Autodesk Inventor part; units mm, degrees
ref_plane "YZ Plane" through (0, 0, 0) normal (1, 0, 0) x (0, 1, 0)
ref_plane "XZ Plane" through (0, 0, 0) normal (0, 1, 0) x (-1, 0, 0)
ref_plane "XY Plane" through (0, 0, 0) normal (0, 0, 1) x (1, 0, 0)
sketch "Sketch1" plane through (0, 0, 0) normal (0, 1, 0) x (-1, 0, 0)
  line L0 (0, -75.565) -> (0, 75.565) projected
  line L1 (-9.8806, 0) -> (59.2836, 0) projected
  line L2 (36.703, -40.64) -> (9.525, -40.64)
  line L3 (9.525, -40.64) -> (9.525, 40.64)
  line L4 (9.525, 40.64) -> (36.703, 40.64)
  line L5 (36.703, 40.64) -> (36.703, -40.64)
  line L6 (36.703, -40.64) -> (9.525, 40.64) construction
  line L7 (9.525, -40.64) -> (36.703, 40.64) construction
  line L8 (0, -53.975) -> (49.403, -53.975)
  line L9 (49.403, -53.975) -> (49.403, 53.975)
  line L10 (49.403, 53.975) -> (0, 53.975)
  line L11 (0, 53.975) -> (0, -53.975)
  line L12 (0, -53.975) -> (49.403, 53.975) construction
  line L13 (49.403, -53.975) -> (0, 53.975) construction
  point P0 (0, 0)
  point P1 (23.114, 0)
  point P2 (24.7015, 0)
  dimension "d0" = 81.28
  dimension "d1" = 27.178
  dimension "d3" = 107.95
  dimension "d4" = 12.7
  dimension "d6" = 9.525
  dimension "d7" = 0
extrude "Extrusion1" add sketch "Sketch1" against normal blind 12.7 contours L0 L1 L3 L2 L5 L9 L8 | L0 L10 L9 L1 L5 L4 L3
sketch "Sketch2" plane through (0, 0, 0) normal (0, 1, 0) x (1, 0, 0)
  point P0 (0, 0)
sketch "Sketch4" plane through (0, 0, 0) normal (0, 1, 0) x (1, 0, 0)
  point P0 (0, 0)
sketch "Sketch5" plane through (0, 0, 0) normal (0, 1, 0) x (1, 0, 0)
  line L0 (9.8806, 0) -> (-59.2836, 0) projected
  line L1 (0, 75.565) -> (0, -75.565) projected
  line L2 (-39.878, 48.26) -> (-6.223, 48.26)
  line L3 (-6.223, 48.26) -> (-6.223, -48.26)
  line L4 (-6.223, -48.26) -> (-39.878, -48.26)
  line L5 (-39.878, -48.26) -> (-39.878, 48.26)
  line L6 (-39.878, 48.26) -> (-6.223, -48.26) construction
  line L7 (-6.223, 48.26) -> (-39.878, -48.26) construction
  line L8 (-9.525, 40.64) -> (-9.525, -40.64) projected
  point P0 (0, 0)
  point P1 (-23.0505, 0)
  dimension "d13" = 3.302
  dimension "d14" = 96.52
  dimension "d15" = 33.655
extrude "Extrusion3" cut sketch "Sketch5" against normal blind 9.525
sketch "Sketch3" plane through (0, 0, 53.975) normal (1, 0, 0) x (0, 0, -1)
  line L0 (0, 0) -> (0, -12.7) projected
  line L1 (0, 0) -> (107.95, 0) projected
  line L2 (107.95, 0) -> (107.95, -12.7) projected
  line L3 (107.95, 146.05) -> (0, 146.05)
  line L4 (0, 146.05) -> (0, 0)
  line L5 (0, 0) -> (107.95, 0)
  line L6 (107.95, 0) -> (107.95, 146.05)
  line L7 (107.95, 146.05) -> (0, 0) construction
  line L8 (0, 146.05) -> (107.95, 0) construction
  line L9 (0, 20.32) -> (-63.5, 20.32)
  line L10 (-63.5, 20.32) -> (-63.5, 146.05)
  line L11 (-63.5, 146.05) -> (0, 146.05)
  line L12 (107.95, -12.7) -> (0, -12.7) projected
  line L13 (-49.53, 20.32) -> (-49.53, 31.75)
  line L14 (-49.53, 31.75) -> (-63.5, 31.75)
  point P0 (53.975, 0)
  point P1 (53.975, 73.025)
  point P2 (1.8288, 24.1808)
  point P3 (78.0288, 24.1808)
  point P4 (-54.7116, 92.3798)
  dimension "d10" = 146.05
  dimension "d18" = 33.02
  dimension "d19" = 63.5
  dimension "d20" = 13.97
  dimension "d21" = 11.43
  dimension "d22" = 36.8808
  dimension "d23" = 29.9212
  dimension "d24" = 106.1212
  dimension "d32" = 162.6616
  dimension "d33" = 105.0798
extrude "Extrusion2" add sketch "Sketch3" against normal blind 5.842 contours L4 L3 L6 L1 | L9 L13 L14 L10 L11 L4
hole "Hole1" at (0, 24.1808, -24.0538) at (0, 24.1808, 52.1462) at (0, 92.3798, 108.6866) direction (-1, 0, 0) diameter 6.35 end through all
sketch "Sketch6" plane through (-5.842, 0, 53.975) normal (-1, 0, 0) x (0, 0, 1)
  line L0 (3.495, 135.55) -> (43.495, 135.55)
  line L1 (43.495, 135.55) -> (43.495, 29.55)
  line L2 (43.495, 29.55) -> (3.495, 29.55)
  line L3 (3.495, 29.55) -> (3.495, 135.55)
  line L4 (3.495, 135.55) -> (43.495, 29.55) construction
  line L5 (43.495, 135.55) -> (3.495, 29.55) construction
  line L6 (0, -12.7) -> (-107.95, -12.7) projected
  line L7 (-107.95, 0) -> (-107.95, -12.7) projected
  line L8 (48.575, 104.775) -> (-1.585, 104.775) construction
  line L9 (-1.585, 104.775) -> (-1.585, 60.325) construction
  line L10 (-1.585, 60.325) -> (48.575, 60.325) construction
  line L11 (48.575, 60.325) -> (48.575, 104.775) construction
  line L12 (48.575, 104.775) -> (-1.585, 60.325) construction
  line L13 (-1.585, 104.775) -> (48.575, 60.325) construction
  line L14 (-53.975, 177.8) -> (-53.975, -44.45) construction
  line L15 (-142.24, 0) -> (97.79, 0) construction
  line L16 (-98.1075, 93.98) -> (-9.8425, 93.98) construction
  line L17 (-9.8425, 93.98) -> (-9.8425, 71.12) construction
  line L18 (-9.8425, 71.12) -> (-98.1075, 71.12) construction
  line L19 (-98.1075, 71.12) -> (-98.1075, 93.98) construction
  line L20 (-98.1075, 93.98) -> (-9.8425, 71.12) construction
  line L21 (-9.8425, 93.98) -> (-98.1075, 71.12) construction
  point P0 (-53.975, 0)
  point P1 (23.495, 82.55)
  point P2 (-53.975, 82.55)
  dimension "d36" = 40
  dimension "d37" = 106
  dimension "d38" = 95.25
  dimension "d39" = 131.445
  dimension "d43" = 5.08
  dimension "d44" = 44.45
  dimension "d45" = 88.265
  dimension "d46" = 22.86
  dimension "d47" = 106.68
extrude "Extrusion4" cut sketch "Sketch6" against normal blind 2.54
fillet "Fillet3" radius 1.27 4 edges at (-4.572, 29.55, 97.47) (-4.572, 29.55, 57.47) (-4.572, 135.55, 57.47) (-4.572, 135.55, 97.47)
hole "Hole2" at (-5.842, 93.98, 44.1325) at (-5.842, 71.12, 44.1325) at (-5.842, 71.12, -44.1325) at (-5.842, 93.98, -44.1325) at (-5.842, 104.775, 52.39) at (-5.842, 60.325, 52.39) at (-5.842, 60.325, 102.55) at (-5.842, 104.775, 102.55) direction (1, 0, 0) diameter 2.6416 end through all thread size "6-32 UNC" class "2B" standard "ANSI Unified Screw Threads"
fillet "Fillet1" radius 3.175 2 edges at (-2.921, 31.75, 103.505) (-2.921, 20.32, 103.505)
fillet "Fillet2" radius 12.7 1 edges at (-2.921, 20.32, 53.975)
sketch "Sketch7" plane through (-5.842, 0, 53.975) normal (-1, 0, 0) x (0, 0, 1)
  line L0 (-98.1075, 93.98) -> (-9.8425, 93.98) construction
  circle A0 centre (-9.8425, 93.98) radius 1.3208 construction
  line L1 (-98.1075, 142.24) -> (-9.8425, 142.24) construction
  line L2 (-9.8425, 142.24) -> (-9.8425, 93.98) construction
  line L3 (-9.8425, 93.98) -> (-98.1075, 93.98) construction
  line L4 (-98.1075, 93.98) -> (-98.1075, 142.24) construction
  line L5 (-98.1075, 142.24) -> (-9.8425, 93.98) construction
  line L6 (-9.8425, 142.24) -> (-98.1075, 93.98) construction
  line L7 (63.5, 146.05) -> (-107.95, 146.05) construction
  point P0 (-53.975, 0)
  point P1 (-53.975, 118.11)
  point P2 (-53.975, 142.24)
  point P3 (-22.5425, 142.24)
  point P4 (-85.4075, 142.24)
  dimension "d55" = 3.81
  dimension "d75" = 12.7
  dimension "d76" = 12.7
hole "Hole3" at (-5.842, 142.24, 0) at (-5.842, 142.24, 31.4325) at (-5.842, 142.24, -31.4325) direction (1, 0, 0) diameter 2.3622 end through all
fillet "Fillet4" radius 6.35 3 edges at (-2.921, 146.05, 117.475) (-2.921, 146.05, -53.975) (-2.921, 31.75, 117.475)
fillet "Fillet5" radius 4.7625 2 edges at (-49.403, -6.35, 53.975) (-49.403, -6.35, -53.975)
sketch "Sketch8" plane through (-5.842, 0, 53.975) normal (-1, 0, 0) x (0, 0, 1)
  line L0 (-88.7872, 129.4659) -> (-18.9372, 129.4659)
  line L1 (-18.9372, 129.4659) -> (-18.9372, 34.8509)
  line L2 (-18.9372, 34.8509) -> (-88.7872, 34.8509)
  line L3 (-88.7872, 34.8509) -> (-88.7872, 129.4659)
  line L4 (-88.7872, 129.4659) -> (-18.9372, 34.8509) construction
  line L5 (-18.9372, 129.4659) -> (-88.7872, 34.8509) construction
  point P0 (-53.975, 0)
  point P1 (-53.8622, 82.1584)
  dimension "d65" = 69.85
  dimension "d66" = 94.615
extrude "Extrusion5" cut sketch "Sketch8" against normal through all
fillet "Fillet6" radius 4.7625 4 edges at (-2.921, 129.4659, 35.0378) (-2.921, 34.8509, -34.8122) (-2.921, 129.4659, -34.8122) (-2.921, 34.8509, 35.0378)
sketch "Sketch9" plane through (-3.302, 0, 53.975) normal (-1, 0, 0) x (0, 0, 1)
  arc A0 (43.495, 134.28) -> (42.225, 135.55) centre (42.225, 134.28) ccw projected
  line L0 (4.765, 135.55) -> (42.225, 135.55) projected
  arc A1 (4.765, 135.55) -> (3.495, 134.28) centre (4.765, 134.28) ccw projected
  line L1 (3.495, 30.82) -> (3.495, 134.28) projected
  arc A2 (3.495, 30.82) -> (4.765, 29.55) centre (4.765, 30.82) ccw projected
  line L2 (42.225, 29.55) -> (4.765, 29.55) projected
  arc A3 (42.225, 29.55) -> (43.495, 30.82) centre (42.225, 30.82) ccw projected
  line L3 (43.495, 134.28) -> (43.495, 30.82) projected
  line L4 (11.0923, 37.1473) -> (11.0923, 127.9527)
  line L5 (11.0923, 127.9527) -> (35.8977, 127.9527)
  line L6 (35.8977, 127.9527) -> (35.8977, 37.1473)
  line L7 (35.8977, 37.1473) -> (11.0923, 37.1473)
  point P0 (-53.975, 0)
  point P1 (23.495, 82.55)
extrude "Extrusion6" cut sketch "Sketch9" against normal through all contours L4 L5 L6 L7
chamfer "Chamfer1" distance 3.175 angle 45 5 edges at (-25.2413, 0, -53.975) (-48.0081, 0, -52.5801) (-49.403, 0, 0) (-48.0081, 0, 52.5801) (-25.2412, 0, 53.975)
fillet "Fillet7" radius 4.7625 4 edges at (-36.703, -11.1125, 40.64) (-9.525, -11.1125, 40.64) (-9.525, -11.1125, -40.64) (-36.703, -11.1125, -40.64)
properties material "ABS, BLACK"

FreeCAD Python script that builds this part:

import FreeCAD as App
import Part
import Sketcher
from FreeCAD import Vector
Q = App.Units.Quantity


def edges_at(feature, points):
    """Names of the edges that pass closest to the given points."""
    edges = feature.Shape.Edges
    near = lambda p: min(range(len(edges)), key=lambda i: edges[i].distToShape(Part.Vertex(*p))[0])
    return sorted({f"Edge{near(p) + 1}" for p in points})


def add_polygon(sketch, points):
    """Adds a closed chain of lines whose ends are joined by coincident constraints."""
    first, n = sketch.GeometryCount, len(points)
    for a, b in zip(points, points[1:] + points[:1]):
        sketch.addGeometry(Part.LineSegment(App.Vector(*a, 0), App.Vector(*b, 0)), False)
    for i in range(n):
        sketch.addConstraint(Sketcher.Constraint("Coincident", first + i, 2, first + (i + 1) % n, 1))

doc = App.newDocument("Part")
body = doc.addObject("PartDesign::Body", "Body")

# Sketch on XZ plane
sketch1 = body.newObject("Sketcher::SketchObject", "Sketch")
sketch1.AttachmentSupport = (doc.getObject("XZ_Plane"), [""])
sketch1.MapMode = "FlatFace"
add_polygon(sketch1, [(0, -54), (-49, -54), (-49, 54), (0, 54)])  # lines 0-3
add_polygon(sketch1, [(-10, -41), (-10, 41), (-37, 41), (-37, -41)])  # lines 4-7
sketch1.addConstraint(Sketcher.Constraint("Horizontal", 0))
sketch1.addConstraint(Sketcher.Constraint("Vertical", 1))
sketch1.addConstraint(Sketcher.Constraint("Horizontal", 2))
sketch1.addConstraint(Sketcher.Constraint("Vertical", 3))
sketch1.addConstraint(Sketcher.Constraint("Vertical", 4))
sketch1.addConstraint(Sketcher.Constraint("Horizontal", 5))
sketch1.addConstraint(Sketcher.Constraint("Vertical", 6))
sketch1.addConstraint(Sketcher.Constraint("Horizontal", 7))
sketch1.addConstraint(Sketcher.Constraint("Symmetric", 2, 2, 3, 2, -1, 1))
sketch1.addConstraint(Sketcher.Constraint("DistanceY", 4, 1, 4, 2, Q("3.2 in")))
sketch1.addConstraint(Sketcher.Constraint("DistanceX", 5, 2, 5, 1, Q("1.07 in")))
sketch1.addConstraint(Sketcher.Constraint("DistanceY", 1, 1, 1, 2, Q("4.25 in")))
sketch1.addConstraint(Sketcher.Constraint("DistanceX", 1, 2, 5, 2, Q("0.5 in")))
sketch1.addConstraint(Sketcher.Constraint("DistanceX", 4, 2, -1, 1, Q("0.375 in")))
sketch1.addConstraint(Sketcher.Constraint("DistanceY", -1, 1, 4, 2, Q("1.6 in")))
pad1 = body.newObject("PartDesign::Pad", "Pad")
pad1.Profile = sketch1
pad1.Length = Q("0.5 in")

# Sketch on XZ plane
sketch2 = body.newObject("Sketcher::SketchObject", "Sketch001")
sketch2.AttachmentSupport = (doc.getObject("XZ_Plane"), [""])
sketch2.MapMode = "FlatFace"
add_polygon(sketch2, [(-6, 48), (-6, -48), (-40, -48), (-40, 48)])  # lines 0-3
sketch2.addConstraint(Sketcher.Constraint("Vertical", 0))
sketch2.addConstraint(Sketcher.Constraint("Horizontal", 1))
sketch2.addConstraint(Sketcher.Constraint("Vertical", 2))
sketch2.addConstraint(Sketcher.Constraint("Horizontal", 3))
sketch2.addConstraint(Sketcher.Constraint("DistanceY", 0, 2, 0, 1, Q("3.8 in")))
sketch2.addConstraint(Sketcher.Constraint("DistanceX", 1, 2, 1, 1, Q("1.325 in")))
sketch2.addConstraint(Sketcher.Constraint("DistanceY", 0, 2, -1, 1, Q("1.9 in")))
sketch2.addConstraint(Sketcher.Constraint("DistanceX", 1, 2, -1, 1, Q("1.57 in")))
pocket1 = body.newObject("PartDesign::Pocket", "Pocket")
pocket1.Profile = sketch2
pocket1.Length = Q("0.375 in")
pocket1.Reversed = True

# Sketch on YZ plane
sketch3 = body.newObject("Sketcher::SketchObject", "Sketch002")
sketch3.AttachmentSupport = (doc.getObject("YZ_Plane"), [""])
sketch3.MapMode = "FlatFace"
add_polygon(sketch3, [(20, 54), (0, 54), (0, -54), (146, -54), (146, 117), (32, 117), (32, 104), (20, 104)])  # lines 0-7
sketch3.addConstraint(Sketcher.Constraint("Horizontal", 0))
sketch3.addConstraint(Sketcher.Constraint("Vertical", 1))
sketch3.addConstraint(Sketcher.Constraint("Horizontal", 2))
sketch3.addConstraint(Sketcher.Constraint("Vertical", 3))
sketch3.addConstraint(Sketcher.Constraint("Horizontal", 4))
sketch3.addConstraint(Sketcher.Constraint("Vertical", 5))
sketch3.addConstraint(Sketcher.Constraint("Horizontal", 6))
sketch3.addConstraint(Sketcher.Constraint("Vertical", 7))
sketch3.addConstraint(Sketcher.Constraint("Symmetric", 0, 2, 1, 2, -1, 1))
sketch3.addConstraint(Sketcher.Constraint("DistanceX", 2, 1, 2, 2, Q("5.75 in")))
sketch3.addConstraint(Sketcher.Constraint("DistanceX", 6, 2, 6, 1, Q("0.45 in")))
sketch3.addConstraint(Sketcher.Constraint("DistanceY", 5, 2, 5, 1, Q("0.55 in")))
sketch3.addConstraint(Sketcher.Constraint("DistanceY", 0, 2, 3, 2, Q("2.5 in")))
sketch3.addConstraint(Sketcher.Constraint("DistanceX", 0, 2, 0, 1, Q("0.8 in")))
sketch3.addConstraint(Sketcher.Constraint("DistanceY", 1, 2, 1, 1, Q("4.25 in")))
pad2 = body.newObject("PartDesign::Pad", "Pad001")
pad2.Profile = sketch3
pad2.Length = Q("0.23 in")
pad2.Reversed = True

# Sketch on YZ plane
sketch4 = body.newObject("Sketcher::SketchObject", "Sketch003")
sketch4.AttachmentSupport = (doc.getObject("YZ_Plane"), [""])
sketch4.MapMode = "FlatFace"
sketch4.addGeometry(Part.Circle(Vector(24.2, -24.1, 0), Vector(0, 0, 1), 3.2), False)
sketch4.addGeometry(Part.Circle(Vector(24.2, 52.1, 0), Vector(0, 0, 1), 3.2), False)
sketch4.addGeometry(Part.Circle(Vector(92.4, 108.7, 0), Vector(0, 0, 1), 3.2), False)
sketch4.addConstraint(Sketcher.Constraint("Equal", 0, 1))
sketch4.addConstraint(Sketcher.Constraint("Equal", 1, 2))
sketch4.addConstraint(Sketcher.Constraint("Vertical", 0, 3, 1, 3))
sketch4.addConstraint(Sketcher.Constraint("Diameter", 0, Q("0.25 in")))
sketch4.addConstraint(Sketcher.Constraint("DistanceY", 0, 3, 1, 3, Q("3 in")))
sketch4.addConstraint(Sketcher.Constraint("DistanceX", -1, 1, 0, 3, Q("0.952 in")))
sketch4.addConstraint(Sketcher.Constraint("DistanceY", 0, 3, -1, 1, Q("0.947 in")))
sketch4.addConstraint(Sketcher.Constraint("DistanceX", -1, 1, 2, 3, Q("3.637 in")))
sketch4.addConstraint(Sketcher.Constraint("DistanceY", -1, 1, 2, 3, Q("4.279 in")))
doc.recompute()
hole = body.newObject("PartDesign::Hole", "Hole")
hole.Profile = sketch4
hole.ThreadType = "None"
hole.Diameter = Q("0.25 in")
hole.DepthType = "ThroughAll"

# Sketch on YZ plane
sketch5 = body.newObject("Sketcher::SketchObject", "Sketch004")
sketch5.AttachmentSupport = (doc.getObject("YZ_Plane"), [""])
sketch5.MapMode = "FlatFace"
sketch5.AttachmentOffset = App.Placement(Vector(0, 0, -0.23 * 25.4), App.Rotation())
add_polygon(sketch5, [(136, 97), (136, 57), (30, 57), (30, 97)])  # lines 0-3
sketch5.addConstraint(Sketcher.Constraint("Vertical", 0))
sketch5.addConstraint(Sketcher.Constraint("Horizontal", 1))
sketch5.addConstraint(Sketcher.Constraint("Vertical", 2))
sketch5.addConstraint(Sketcher.Constraint("Horizontal", 3))
sketch5.addConstraint(Sketcher.Constraint("DistanceY", 0, 2, 0, 1, Q("1.5748 in")))
sketch5.addConstraint(Sketcher.Constraint("DistanceX", 1, 2, 1, 1, Q("106 mm")))
sketch5.addConstraint(Sketcher.Constraint("DistanceY", -1, 1, 0, 2, Q("2.2626 in")))
sketch5.addConstraint(Sketcher.Constraint("DistanceX", -1, 1, 0, 2, Q("135.55 mm")))
pocket2 = body.newObject("PartDesign::Pocket", "Pocket001")
pocket2.Profile = sketch5
pocket2.Length = Q("0.1 in")
pocket2.Reversed = True
doc.recompute()

fillet = body.newObject("PartDesign::Fillet", "Fillet")
fillet.Base = (pocket2, edges_at(pocket2, [
    (-4.572, 29.55, 97.47),
    (-4.572, 29.55, 57.47),
    (-4.572, 135.55, 57.47),
    (-4.572, 135.55, 97.47),
]))
fillet.Radius = Q("0.05 in")

# Sketch on YZ plane
sketch6 = body.newObject("Sketcher::SketchObject", "Sketch005")
sketch6.AttachmentSupport = (doc.getObject("YZ_Plane"), [""])
sketch6.MapMode = "FlatFace"
sketch6.AttachmentOffset = App.Placement(Vector(0, 0, -0.23 * 25.4), App.Rotation())
sketch6.addGeometry(Part.Circle(Vector(94, 44.1, 0), Vector(0, 0, 1), 1.3), False)
sketch6.addGeometry(Part.Circle(Vector(71.1, 44.1, 0), Vector(0, 0, 1), 1.3), False)
sketch6.addGeometry(Part.Circle(Vector(71.1, -44.1, 0), Vector(0, 0, 1), 1.3), False)
sketch6.addGeometry(Part.Circle(Vector(94, -44.1, 0), Vector(0, 0, 1), 1.3), False)
sketch6.addGeometry(Part.Circle(Vector(104.8, 52.4, 0), Vector(0, 0, 1), 1.3), False)
sketch6.addGeometry(Part.Circle(Vector(60.3, 52.4, 0), Vector(0, 0, 1), 1.3), False)
sketch6.addGeometry(Part.Circle(Vector(60.3, 102.5, 0), Vector(0, 0, 1), 1.3), False)
sketch6.addGeometry(Part.Circle(Vector(104.8, 102.5, 0), Vector(0, 0, 1), 1.3), False)
sketch6.addConstraint(Sketcher.Constraint("Equal", 0, 1))
sketch6.addConstraint(Sketcher.Constraint("Equal", 1, 2))
sketch6.addConstraint(Sketcher.Constraint("Equal", 2, 3))
sketch6.addConstraint(Sketcher.Constraint("Equal", 3, 4))
sketch6.addConstraint(Sketcher.Constraint("Equal", 4, 5))
sketch6.addConstraint(Sketcher.Constraint("Equal", 5, 6))
sketch6.addConstraint(Sketcher.Constraint("Equal", 6, 7))
sketch6.addConstraint(Sketcher.Constraint("Symmetric", 1, 3, 2, 3, -1))
sketch6.addConstraint(Sketcher.Constraint("Symmetric", 0, 3, 3, 3, -1))
sketch6.addConstraint(Sketcher.Constraint("Horizontal", 0, 3, 1, 3))
sketch6.addConstraint(Sketcher.Constraint("Horizontal", 4, 3, 5, 3))
sketch6.addConstraint(Sketcher.Constraint("Horizontal", 6, 3, 7, 3))
sketch6.addConstraint(Sketcher.Constraint("Vertical", 5, 3, 6, 3))
sketch6.addConstraint(Sketcher.Constraint("Vertical", 4, 3, 7, 3))
sketch6.addConstraint(Sketcher.Constraint("Diameter", 0, Q("0.104 in")))
sketch6.addConstraint(Sketcher.Constraint("DistanceX", -1, 1, 0, 3, Q("3.7 in")))
sketch6.addConstraint(Sketcher.Constraint("DistanceX", -1, 1, 1, 3, Q("2.8 in")))
sketch6.addConstraint(Sketcher.Constraint("DistanceX", 5, 3, 4, 3, Q("1.75 in")))
sketch6.addConstraint(Sketcher.Constraint("DistanceX", -1, 1, 4, 3, Q("4.125 in")))
sketch6.addConstraint(Sketcher.Constraint("DistanceY", 2, 3, 1, 3, Q("3.475 in")))
sketch6.addConstraint(Sketcher.Constraint("DistanceY", -1, 1, 4, 3, Q("2.0626 in")))
sketch6.addConstraint(Sketcher.Constraint("DistanceY", -1, 1, 6, 3, Q("4.0374 in")))
doc.recompute()
hole2 = body.newObject("PartDesign::Hole", "Hole001")
hole2.Profile = sketch6
hole2.ThreadType = "None"
hole2.Diameter = Q("0.104 in")
hole2.DepthType = "ThroughAll"
hole2.Reversed = True
doc.recompute()

fillet2 = body.newObject("PartDesign::Fillet", "Fillet001")
fillet2.Base = (hole2, edges_at(hole2, [(-2.921, 31.75, 103.505), (-2.921, 20.32, 103.505)]))
fillet2.Radius = Q("0.125 in")
doc.recompute()

fillet3 = body.newObject("PartDesign::Fillet", "Fillet002")
fillet3.Base = (fillet2, edges_at(fillet2, [(-2.921, 20.32, 53.975)]))
fillet3.Radius = Q("0.5 in")

# Sketch on YZ plane
sketch7 = body.newObject("Sketcher::SketchObject", "Sketch006")
sketch7.AttachmentSupport = (doc.getObject("YZ_Plane"), [""])
sketch7.MapMode = "FlatFace"
sketch7.AttachmentOffset = App.Placement(Vector(0, 0, -0.23 * 25.4), App.Rotation())
sketch7.addGeometry(Part.Circle(Vector(142.2, 0, 0), Vector(0, 0, 1), 1.2), False)
sketch7.addGeometry(Part.Circle(Vector(142.2, 31.4, 0), Vector(0, 0, 1), 1.2), False)
sketch7.addGeometry(Part.Circle(Vector(142.2, -31.4, 0), Vector(0, 0, 1), 1.2), False)
sketch7.addConstraint(Sketcher.Constraint("Equal", 0, 1))
sketch7.addConstraint(Sketcher.Constraint("Equal", 1, 2))
sketch7.addConstraint(Sketcher.Constraint("Symmetric", 1, 3, 2, 3, -1))
sketch7.addConstraint(Sketcher.Constraint("PointOnObject", 0, 3, -1))
sketch7.addConstraint(Sketcher.Constraint("Vertical", 0, 3, 1, 3))
sketch7.addConstraint(Sketcher.Constraint("Diameter", 0, Q("0.093 in")))
sketch7.addConstraint(Sketcher.Constraint("DistanceX", -1, 1, 0, 3, Q("5.6 in")))
sketch7.addConstraint(Sketcher.Constraint("DistanceY", 2, 3, 1, 3, Q("2.475 in")))
doc.recompute()
hole3 = body.newObject("PartDesign::Hole", "Hole002")
hole3.Profile = sketch7
hole3.ThreadType = "None"
hole3.Diameter = Q("0.093 in")
hole3.DepthType = "ThroughAll"
hole3.Reversed = True
doc.recompute()

fillet4 = body.newObject("PartDesign::Fillet", "Fillet003")
fillet4.Base = (hole3, edges_at(hole3, [(-2.921, 146.05, 117.475), (-2.921, 146.05, -53.975), (-2.921, 31.75, 117.475)]))
fillet4.Radius = Q("0.25 in")
doc.recompute()

fillet5 = body.newObject("PartDesign::Fillet", "Fillet004")
fillet5.Base = (fillet4, edges_at(fillet4, [(-49.403, -6.35, 53.975), (-49.403, -6.35, -53.975)]))
fillet5.Radius = Q("0.1875 in")

# Sketch on YZ plane
sketch8 = body.newObject("Sketcher::SketchObject", "Sketch007")
sketch8.AttachmentSupport = (doc.getObject("YZ_Plane"), [""])
sketch8.MapMode = "FlatFace"
sketch8.AttachmentOffset = App.Placement(Vector(0, 0, -0.23 * 25.4), App.Rotation())
add_polygon(sketch8, [(129, 35), (129, -35), (35, -35), (35, 35)])  # lines 0-3
sketch8.addConstraint(Sketcher.Constraint("Vertical", 0))
sketch8.addConstraint(Sketcher.Constraint("Horizontal", 1))
sketch8.addConstraint(Sketcher.Constraint("Vertical", 2))
sketch8.addConstraint(Sketcher.Constraint("Horizontal", 3))
sketch8.addConstraint(Sketcher.Constraint("DistanceY", 0, 2, 0, 1, Q("2.75 in")))
sketch8.addConstraint(Sketcher.Constraint("DistanceX", 1, 2, 1, 1, Q("3.725 in")))
sketch8.addConstraint(Sketcher.Constraint("DistanceX", -1, 1, 0, 2, Q("129.466 mm")))
sketch8.addConstraint(Sketcher.Constraint("DistanceY", 0, 2, -1, 1, Q("34.8122 mm")))
pocket3 = body.newObject("PartDesign::Pocket", "Pocket002")
pocket3.Profile = sketch8
pocket3.Type = "ThroughAll"
pocket3.Reversed = True
doc.recompute()

fillet6 = body.newObject("PartDesign::Fillet", "Fillet005")
fillet6.Base = (pocket3, edges_at(pocket3, [
    (-2.921, 129.466, 35.038),
    (-2.921, 34.851, -34.812),
    (-2.921, 129.466, -34.812),
    (-2.921, 34.851, 35.038),
]))
fillet6.Radius = Q("0.1875 in")

# Sketch on YZ plane
sketch9 = body.newObject("Sketcher::SketchObject", "Sketch008")
sketch9.AttachmentSupport = (doc.getObject("YZ_Plane"), [""])
sketch9.MapMode = "FlatFace"
sketch9.AttachmentOffset = App.Placement(Vector(0, 0, -0.13 * 25.4), App.Rotation())
add_polygon(sketch9, [(128, 65), (37, 65), (37, 90), (128, 90)])  # lines 0-3
sketch9.addConstraint(Sketcher.Constraint("Horizontal", 0))
sketch9.addConstraint(Sketcher.Constraint("Vertical", 1))
sketch9.addConstraint(Sketcher.Constraint("Horizontal", 2))
sketch9.addConstraint(Sketcher.Constraint("Vertical", 3))
sketch9.addConstraint(Sketcher.Constraint("DistanceY", 1, 1, 1, 2, Q("0.9766 in")))
sketch9.addConstraint(Sketcher.Constraint("DistanceX", 0, 2, 0, 1, Q("90.8054 mm")))
sketch9.addConstraint(Sketcher.Constraint("DistanceX", -1, 1, 0, 2, Q("1.4625 in")))
sketch9.addConstraint(Sketcher.Constraint("DistanceY", -1, 1, 0, 2, Q("2.5617 in")))
pocket4 = body.newObject("PartDesign::Pocket", "Pocket003")
pocket4.Profile = sketch9
pocket4.Type = "ThroughAll"
pocket4.Reversed = True
doc.recompute()

chamfer = body.newObject("PartDesign::Chamfer", "Chamfer")
chamfer.Base = (pocket4, edges_at(pocket4, [
    (-25.241, 0, -53.975),
    (-48.008, 0, -52.58),
    (-49.403, 0, 0),
    (-48.008, 0, 52.58),
    (-25.241, 0, 53.975),
]))
chamfer.Size = Q("0.125 in")
doc.recompute()

fillet7 = body.newObject("PartDesign::Fillet", "Fillet006")
fillet7.Base = (chamfer, edges_at(chamfer, [
    (-36.703, -11.113, 40.64),
    (-9.525, -11.113, 40.64),
    (-9.525, -11.113, -40.64),
    (-36.703, -11.113, -40.64),
]))
fillet7.Radius = Q("0.1875 in")

doc.recompute()
